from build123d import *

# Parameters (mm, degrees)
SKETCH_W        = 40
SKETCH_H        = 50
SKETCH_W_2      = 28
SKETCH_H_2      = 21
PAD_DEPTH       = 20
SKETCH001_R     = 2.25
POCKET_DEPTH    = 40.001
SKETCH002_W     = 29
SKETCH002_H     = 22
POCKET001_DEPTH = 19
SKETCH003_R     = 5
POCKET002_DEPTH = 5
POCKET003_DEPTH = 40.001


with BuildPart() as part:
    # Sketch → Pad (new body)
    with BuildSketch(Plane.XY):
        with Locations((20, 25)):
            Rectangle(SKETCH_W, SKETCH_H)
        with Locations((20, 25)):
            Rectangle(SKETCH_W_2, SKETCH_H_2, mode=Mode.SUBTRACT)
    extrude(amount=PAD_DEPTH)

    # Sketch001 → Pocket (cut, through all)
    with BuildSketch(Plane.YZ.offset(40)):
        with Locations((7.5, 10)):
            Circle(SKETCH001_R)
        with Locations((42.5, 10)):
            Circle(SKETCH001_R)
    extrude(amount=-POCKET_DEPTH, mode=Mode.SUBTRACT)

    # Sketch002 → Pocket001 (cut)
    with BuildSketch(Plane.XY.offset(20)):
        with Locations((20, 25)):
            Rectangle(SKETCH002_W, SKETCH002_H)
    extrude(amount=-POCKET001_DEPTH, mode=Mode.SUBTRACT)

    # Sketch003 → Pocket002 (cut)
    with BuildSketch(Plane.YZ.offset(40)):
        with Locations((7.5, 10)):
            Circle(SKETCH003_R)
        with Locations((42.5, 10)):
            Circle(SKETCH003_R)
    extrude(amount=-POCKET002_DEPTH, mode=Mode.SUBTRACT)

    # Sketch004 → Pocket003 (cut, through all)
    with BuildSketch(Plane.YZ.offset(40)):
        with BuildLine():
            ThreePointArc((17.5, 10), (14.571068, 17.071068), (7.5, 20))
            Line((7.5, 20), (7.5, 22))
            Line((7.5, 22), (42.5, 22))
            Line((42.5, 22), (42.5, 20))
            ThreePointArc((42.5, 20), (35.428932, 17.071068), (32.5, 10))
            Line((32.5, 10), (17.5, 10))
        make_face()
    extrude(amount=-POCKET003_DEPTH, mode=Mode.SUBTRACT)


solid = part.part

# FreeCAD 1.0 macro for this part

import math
import FreeCAD as App
import Part
import Sketcher

V = App.Vector


def add_polygon(sketch, points):
    """Adds a closed chain of lines whose ends are joined by coincident constraints."""
    first, n = sketch.GeometryCount, len(points)
    for a, b in zip(points, points[1:] + points[:1]):
        sketch.addGeometry(Part.LineSegment(App.Vector(*a, 0), App.Vector(*b, 0)), False)
    for i in range(n):
        sketch.addConstraint(Sketcher.Constraint("Coincident", first + i, 2, first + (i + 1) % n, 1))

doc = App.newDocument("Part")
body = doc.addObject("PartDesign::Body", "Body")

# Sketch on XY plane
sketch1 = body.newObject("Sketcher::SketchObject", "Sketch")
sketch1.AttachmentSupport = (doc.getObject("XY_Plane"), [""])
sketch1.MapMode = "FlatFace"
add_polygon(sketch1, [(0, 50), (0, 0), (40, 0), (40, 50)])  # lines 0-3
add_polygon(sketch1, [(34, 14), (6, 14), (6, 36), (34, 36)])  # lines 4-7
sketch1.addConstraint([
    Sketcher.Constraint("Vertical", 0),
    Sketcher.Constraint("Horizontal", 1),
    Sketcher.Constraint("Vertical", 2),
    Sketcher.Constraint("Horizontal", 3),
    Sketcher.Constraint("Horizontal", 4),
    Sketcher.Constraint("Vertical", 5),
    Sketcher.Constraint("Horizontal", 6),
    Sketcher.Constraint("Vertical", 7),
    Sketcher.Constraint("Coincident", 0, 2, -1, 1),
    Sketcher.Constraint("DistanceX", 1, 1, 1, 2, 40.0),
    Sketcher.Constraint("DistanceX", 4, 2, 4, 1, 28.0),
    Sketcher.Constraint("DistanceY", 0, 2, 0, 1, 50.0),
    Sketcher.Constraint("DistanceY", 5, 1, 5, 2, 21.0),
    Sketcher.Constraint("DistanceX", -1, 1, 4, 2, 6.0),
    Sketcher.Constraint("DistanceY", -1, 1, 4, 2, 14.5),
])
pad1 = body.newObject("PartDesign::Pad", "Pad")
pad1.Profile = sketch1
pad1.Length = 20

# Sketch on YZ plane
sketch2 = body.newObject("Sketcher::SketchObject", "Sketch001")
sketch2.AttachmentSupport = (doc.getObject("YZ_Plane"), [""])
sketch2.MapMode = "FlatFace"
sketch2.AttachmentOffset = App.Placement(V(0, 0, 40), App.Rotation())
sketch2.addGeometry([
    Part.Circle(V(7.5, 10, 0), V(0, 0, 1), 2.2),
    Part.Circle(V(42.5, 10, 0), V(0, 0, 1), 2.2),
], False)
sketch2.addConstraint([
    Sketcher.Constraint("Equal", 0, 1),
    Sketcher.Constraint("Horizontal", 0, 3, 1, 3),
    Sketcher.Constraint("Diameter", 0, 4.5),
    Sketcher.Constraint("DistanceY", -1, 1, 0, 3, 10.0),
    Sketcher.Constraint("DistanceX", 0, 3, 1, 3, 35.0),
    Sketcher.Constraint("DistanceX", -1, 1, 0, 3, 7.5),
])
pocket1 = body.newObject("PartDesign::Pocket", "Pocket")
pocket1.Profile = sketch2
pocket1.Type = "ThroughAll"

# Sketch on XY plane
sketch3 = body.newObject("Sketcher::SketchObject", "Sketch002")
sketch3.AttachmentSupport = (doc.getObject("XY_Plane"), [""])
sketch3.MapMode = "FlatFace"
sketch3.AttachmentOffset = App.Placement(V(0, 0, 20), App.Rotation())
add_polygon(sketch3, [(6, 36), (6, 14), (34, 14), (34, 36)])  # lines 0-3
sketch3.addConstraint([
    Sketcher.Constraint("Vertical", 0),
    Sketcher.Constraint("Horizontal", 1),
    Sketcher.Constraint("Vertical", 2),
    Sketcher.Constraint("Horizontal", 3),
    Sketcher.Constraint("DistanceX", 1, 1, 1, 2, 29.0),
    Sketcher.Constraint("DistanceY", 0, 2, 0, 1, 22.0),
    Sketcher.Constraint("DistanceY", -1, 1, 0, 2, 14.0),
    Sketcher.Constraint("DistanceX", -1, 1, 0, 2, 5.5),
])
pocket2 = body.newObject("PartDesign::Pocket", "Pocket001")
pocket2.Profile = sketch3
pocket2.Length = 19

# Sketch on YZ plane
sketch4 = body.newObject("Sketcher::SketchObject", "Sketch003")
sketch4.AttachmentSupport = (doc.getObject("YZ_Plane"), [""])
sketch4.MapMode = "FlatFace"
sketch4.AttachmentOffset = App.Placement(V(0, 0, 40), App.Rotation())
sketch4.addGeometry([
    Part.Circle(V(8, 10, 0), V(0, 0, 1), 5),
    Part.Circle(V(42, 10, 0), V(0, 0, 1), 5),
], False)
sketch4.addConstraint([
    Sketcher.Constraint("Equal", 0, 1),
    Sketcher.Constraint("Horizontal", 0, 3, 1, 3),
    Sketcher.Constraint("Diameter", 0, 10.0),
    Sketcher.Constraint("DistanceY", -1, 1, 0, 3, 10.0),
    Sketcher.Constraint("DistanceX", 0, 3, 1, 3, 35.0),
    Sketcher.Constraint("DistanceX", -1, 1, 0, 3, 7.5),
])
pocket3 = body.newObject("PartDesign::Pocket", "Pocket002")
pocket3.Profile = sketch4
pocket3.Length = 5

# Sketch on YZ plane
sketch5 = body.newObject("Sketcher::SketchObject", "Sketch004")
sketch5.AttachmentSupport = (doc.getObject("YZ_Plane"), [""])
sketch5.MapMode = "FlatFace"
sketch5.AttachmentOffset = App.Placement(V(0, 0, 40), App.Rotation())
sketch5.addGeometry([
    Part.ArcOfCircle(Part.Circle(V(7.5, 10, 0), V(0, 0, 1), 10), math.radians(0), math.radians(90)),  # 0
    Part.LineSegment(V(17.5, 10, 0), V(32.5, 10, 0)),  # 1
    Part.ArcOfCircle(Part.Circle(V(42.5, 10, 0), V(0, 0, 1), 10), math.radians(90), math.radians(180)),  # 2
    Part.LineSegment(V(42.5, 20, 0), V(42.5, 22, 0)),  # 3
    Part.LineSegment(V(42.5, 22, 0), V(7.5, 22, 0)),  # 4
    Part.LineSegment(V(7.5, 22, 0), V(7.5, 20, 0)),  # 5
], False)
sketch5.addConstraint([
    Sketcher.Constraint("Coincident", 0, 1, 1, 1),
    Sketcher.Constraint("Coincident", 1, 2, 2, 2),
    Sketcher.Constraint("Coincident", 2, 1, 3, 1),
    Sketcher.Constraint("Coincident", 3, 2, 4, 1),
    Sketcher.Constraint("Coincident", 4, 2, 5, 1),
    Sketcher.Constraint("Coincident", 5, 2, 0, 2),
    Sketcher.Constraint("Horizontal", 1),
    Sketcher.Constraint("Vertical", 3),
    Sketcher.Constraint("Horizontal", 4),
    Sketcher.Constraint("Vertical", 5),
    Sketcher.Constraint("Equal", 0, 2),
    Sketcher.Constraint("Horizontal", 0, 3, 2, 3),
    Sketcher.Constraint("Horizontal", 2, 3, 0, 1),
    Sketcher.Constraint("Vertical", 0, 3, 4, 2),
    Sketcher.Constraint("Radius", 0, 9.999999),
    Sketcher.Constraint("DistanceX", 1, 1, 1, 2, 15.0),
    Sketcher.Constraint("DistanceX", 4, 2, 4, 1, 35.0),
    Sketcher.Constraint("DistanceY", 3, 1, 3, 2, 2.0),
    Sketcher.Constraint("DistanceY", -1, 1, 0, 3, 10.000001),
    Sketcher.Constraint("DistanceX", -1, 1, 0, 3, 7.500001),
])
pocket4 = body.newObject("PartDesign::Pocket", "Pocket003")
pocket4.Profile = sketch5
pocket4.Type = "ThroughAll"

doc.recompute()
